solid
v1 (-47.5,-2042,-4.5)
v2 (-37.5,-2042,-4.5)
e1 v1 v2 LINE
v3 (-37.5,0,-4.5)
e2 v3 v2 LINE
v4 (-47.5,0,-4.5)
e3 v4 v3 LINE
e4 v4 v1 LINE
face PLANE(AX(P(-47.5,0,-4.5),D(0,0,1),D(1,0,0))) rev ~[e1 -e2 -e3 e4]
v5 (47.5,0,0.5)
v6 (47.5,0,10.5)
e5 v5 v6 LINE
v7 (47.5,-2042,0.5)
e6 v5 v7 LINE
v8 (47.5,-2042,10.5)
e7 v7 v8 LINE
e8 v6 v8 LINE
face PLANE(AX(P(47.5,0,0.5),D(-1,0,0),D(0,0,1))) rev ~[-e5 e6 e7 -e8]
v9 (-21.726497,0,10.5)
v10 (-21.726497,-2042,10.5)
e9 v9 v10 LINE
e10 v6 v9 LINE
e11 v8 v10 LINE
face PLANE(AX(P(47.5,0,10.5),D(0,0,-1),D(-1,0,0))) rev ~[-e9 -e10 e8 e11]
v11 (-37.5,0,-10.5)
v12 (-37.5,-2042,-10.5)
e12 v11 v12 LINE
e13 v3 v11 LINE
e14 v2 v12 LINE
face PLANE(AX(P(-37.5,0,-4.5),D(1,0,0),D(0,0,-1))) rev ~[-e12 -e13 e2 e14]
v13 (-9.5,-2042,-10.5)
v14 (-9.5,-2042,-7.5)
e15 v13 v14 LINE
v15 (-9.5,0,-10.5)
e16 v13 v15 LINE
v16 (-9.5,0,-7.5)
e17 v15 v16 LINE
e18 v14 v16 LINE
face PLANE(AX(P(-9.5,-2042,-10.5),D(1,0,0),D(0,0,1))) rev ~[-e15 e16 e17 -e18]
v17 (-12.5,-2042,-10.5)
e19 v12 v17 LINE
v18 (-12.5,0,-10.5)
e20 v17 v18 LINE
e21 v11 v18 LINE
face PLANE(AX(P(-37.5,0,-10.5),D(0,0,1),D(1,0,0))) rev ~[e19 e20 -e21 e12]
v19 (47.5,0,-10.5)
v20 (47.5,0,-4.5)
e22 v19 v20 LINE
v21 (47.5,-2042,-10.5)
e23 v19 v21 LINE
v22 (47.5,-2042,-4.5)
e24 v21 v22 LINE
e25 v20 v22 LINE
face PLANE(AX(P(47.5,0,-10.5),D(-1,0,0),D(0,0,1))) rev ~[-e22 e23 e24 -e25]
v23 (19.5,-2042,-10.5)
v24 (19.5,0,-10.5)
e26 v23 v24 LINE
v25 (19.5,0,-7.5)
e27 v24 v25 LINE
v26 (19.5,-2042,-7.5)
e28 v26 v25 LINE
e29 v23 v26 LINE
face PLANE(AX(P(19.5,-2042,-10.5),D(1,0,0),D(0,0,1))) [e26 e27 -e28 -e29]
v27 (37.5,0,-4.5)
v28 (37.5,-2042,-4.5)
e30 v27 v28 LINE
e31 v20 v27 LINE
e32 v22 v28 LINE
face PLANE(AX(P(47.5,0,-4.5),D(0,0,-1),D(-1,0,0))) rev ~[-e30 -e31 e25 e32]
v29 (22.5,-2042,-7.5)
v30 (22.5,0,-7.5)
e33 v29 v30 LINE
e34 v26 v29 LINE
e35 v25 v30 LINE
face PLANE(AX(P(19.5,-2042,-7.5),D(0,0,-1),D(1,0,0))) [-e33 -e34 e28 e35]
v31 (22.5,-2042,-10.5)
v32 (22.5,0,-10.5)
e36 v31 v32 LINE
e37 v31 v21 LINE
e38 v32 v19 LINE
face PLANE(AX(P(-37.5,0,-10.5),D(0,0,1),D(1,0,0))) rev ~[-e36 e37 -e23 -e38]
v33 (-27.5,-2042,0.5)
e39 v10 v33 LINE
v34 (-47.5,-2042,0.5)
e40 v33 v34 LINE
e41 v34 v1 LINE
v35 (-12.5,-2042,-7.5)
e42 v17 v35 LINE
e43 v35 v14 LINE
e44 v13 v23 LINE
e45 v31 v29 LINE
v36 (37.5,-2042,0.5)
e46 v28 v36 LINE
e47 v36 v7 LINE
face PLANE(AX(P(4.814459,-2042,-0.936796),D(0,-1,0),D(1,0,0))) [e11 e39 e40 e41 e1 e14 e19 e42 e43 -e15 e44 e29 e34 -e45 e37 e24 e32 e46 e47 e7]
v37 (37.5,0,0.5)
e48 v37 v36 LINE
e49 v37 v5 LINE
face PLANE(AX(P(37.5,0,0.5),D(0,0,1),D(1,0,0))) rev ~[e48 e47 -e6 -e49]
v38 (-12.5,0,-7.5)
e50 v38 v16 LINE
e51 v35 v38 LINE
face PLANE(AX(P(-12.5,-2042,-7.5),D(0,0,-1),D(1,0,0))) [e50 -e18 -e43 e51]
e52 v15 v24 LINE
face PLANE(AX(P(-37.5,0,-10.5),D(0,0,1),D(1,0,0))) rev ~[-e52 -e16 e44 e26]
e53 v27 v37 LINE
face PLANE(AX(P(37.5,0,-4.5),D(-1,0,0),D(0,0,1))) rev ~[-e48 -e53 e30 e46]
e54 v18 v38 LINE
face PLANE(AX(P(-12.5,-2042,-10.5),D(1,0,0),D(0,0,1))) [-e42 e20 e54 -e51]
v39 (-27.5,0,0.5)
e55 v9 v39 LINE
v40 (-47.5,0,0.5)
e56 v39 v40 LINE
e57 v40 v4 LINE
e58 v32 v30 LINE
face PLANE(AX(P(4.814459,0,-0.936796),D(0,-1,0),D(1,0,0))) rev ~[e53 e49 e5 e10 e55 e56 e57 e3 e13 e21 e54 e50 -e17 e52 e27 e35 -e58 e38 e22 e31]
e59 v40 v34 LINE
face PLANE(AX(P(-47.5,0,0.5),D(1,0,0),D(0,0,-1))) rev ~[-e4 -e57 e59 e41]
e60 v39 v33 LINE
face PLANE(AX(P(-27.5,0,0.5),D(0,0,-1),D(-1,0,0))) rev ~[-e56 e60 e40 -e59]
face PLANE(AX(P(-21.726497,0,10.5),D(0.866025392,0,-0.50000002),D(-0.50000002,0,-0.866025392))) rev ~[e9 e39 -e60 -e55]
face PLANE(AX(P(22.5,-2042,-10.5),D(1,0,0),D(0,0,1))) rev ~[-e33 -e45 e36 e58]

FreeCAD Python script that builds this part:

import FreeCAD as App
import Part
import Sketcher

V = App.Vector
Q = App.Units.Quantity

doc = App.newDocument("Part")
params = doc.addObject("Spreadsheet::Sheet", "Params")
for row, (alias, value) in enumerate([
    ("sketch1_width", "20 mm"),
    ("sketch1_width2", "10 mm"),
    ("sketch1_width3", "85 mm"),
    ("sketch1_height", "5 mm"),
    ("sketch1_height2", "6 mm"),
    ("pad1_length", "2042 mm"),
    ("sketch2_width", "3 mm"),
], start=1):
    params.set(f"A{row}", alias)
    params.set(f"B{row}", "=" + value)
    params.setAlias(f"B{row}", alias)

body = doc.addObject("PartDesign::Body", "Body")

# Sketch on XZ plane
sketch1 = body.newObject("Sketcher::SketchObject", "Sketch")
sketch1.AttachmentSupport = (doc.getObject("XZ_Plane"), [""])
sketch1.MapMode = "FlatFace"
sketch1.addGeometry(Part.LineSegment(V(48, 10, 0), V(-22, 10, 0)), False)
sketch1.addGeometry(Part.LineSegment(V(-22, 10, 0), V(-28, 0, 0)), False)
sketch1.addGeometry(Part.LineSegment(V(-28, 0, 0), V(-48, 0, 0)), False)
sketch1.addGeometry(Part.LineSegment(V(-48, 0, 0), V(-48, -4, 0)), False)
sketch1.addGeometry(Part.LineSegment(V(-48, -4, 0), V(-38, -4, 0)), False)
sketch1.addGeometry(Part.LineSegment(V(-38, -4, 0), V(-38, -10, 0)), False)
sketch1.addGeometry(Part.LineSegment(V(-38, -10, 0), V(48, -10, 0)), False)
sketch1.addGeometry(Part.LineSegment(V(48, -10, 0), V(48, -4, 0)), False)
sketch1.addGeometry(Part.LineSegment(V(48, -4, 0), V(38, -4, 0)), False)
sketch1.addGeometry(Part.LineSegment(V(38, -4, 0), V(38, 0, 0)), False)
sketch1.addGeometry(Part.LineSegment(V(38, 0, 0), V(48, 0, 0)), False)
sketch1.addGeometry(Part.LineSegment(V(48, 0, 0), V(48, 10, 0)), False)
sketch1.addConstraint(Sketcher.Constraint("Coincident", 0, 2, 1, 1))
sketch1.addConstraint(Sketcher.Constraint("Coincident", 1, 2, 2, 1))
sketch1.addConstraint(Sketcher.Constraint("Coincident", 2, 2, 3, 1))
sketch1.addConstraint(Sketcher.Constraint("Coincident", 3, 2, 4, 1))
sketch1.addConstraint(Sketcher.Constraint("Coincident", 4, 2, 5, 1))
sketch1.addConstraint(Sketcher.Constraint("Coincident", 5, 2, 6, 1))
sketch1.addConstraint(Sketcher.Constraint("Coincident", 6, 2, 7, 1))
sketch1.addConstraint(Sketcher.Constraint("Coincident", 7, 2, 8, 1))
sketch1.addConstraint(Sketcher.Constraint("Coincident", 8, 2, 9, 1))
sketch1.addConstraint(Sketcher.Constraint("Coincident", 9, 2, 10, 1))
sketch1.addConstraint(Sketcher.Constraint("Coincident", 10, 2, 11, 1))
sketch1.addConstraint(Sketcher.Constraint("Coincident", 11, 2, 0, 1))
sketch1.addConstraint(Sketcher.Constraint("Horizontal", 0))
sketch1.addConstraint(Sketcher.Constraint("Horizontal", 2))
sketch1.addConstraint(Sketcher.Constraint("Vertical", 3))
sketch1.addConstraint(Sketcher.Constraint("Horizontal", 4))
sketch1.addConstraint(Sketcher.Constraint("Vertical", 5))
sketch1.addConstraint(Sketcher.Constraint("Horizontal", 6))
sketch1.addConstraint(Sketcher.Constraint("Vertical", 7))
sketch1.addConstraint(Sketcher.Constraint("Horizontal", 8))
sketch1.addConstraint(Sketcher.Constraint("Vertical", 9))
sketch1.addConstraint(Sketcher.Constraint("Horizontal", 10))
sketch1.addConstraint(Sketcher.Constraint("Vertical", 11))
sketch1.addConstraint(Sketcher.Constraint("Symmetric", 3, 2, 7, 2, -2))
sketch1.addConstraint(Sketcher.Constraint("Symmetric", 2, 2, 10, 2, -2))
sketch1.addConstraint(Sketcher.Constraint("Equal", 4, 8))
sketch1.addConstraint(Sketcher.Constraint("Equal", 10, 11))
sketch1.addConstraint(Sketcher.Constraint("DistanceX", 2, 2, 2, 1, 20.0))
sketch1.addConstraint(Sketcher.Constraint("DistanceX", 4, 1, 4, 2, 10.0))
sketch1.addConstraint(Sketcher.Constraint("DistanceX", 6, 1, 6, 2, 85.0))
sketch1.addConstraint(Sketcher.Constraint("DistanceY", 3, 2, 3, 1, 5.0))
sketch1.addConstraint(Sketcher.Constraint("DistanceY", 5, 2, 5, 1, 6.0))
sketch1.addConstraint(Sketcher.Constraint("Angle", 1, Q("-120.000001 deg")))
sketch1.addConstraint(Sketcher.Constraint("DistanceY", -1, 1, 0, 2, 10.5))
sketch1.setExpression("Constraints[27]", "Params.sketch1_width")
sketch1.setExpression("Constraints[28]", "Params.sketch1_width2")
sketch1.setExpression("Constraints[29]", "Params.sketch1_width3")
sketch1.setExpression("Constraints[30]", "Params.sketch1_height")
sketch1.setExpression("Constraints[31]", "Params.sketch1_height2")
pad1 = body.newObject("PartDesign::Pad", "Pad")
pad1.Profile = sketch1
pad1.setExpression("Length", "Params.pad1_length")

# Sketch on XZ plane
sketch2 = body.newObject("Sketcher::SketchObject", "Sketch001")
sketch2.AttachmentSupport = (doc.getObject("XZ_Plane"), [""])
sketch2.MapMode = "FlatFace"
sketch2.AttachmentOffset = App.Placement(V(0, 0, 2042), App.Rotation())
sketch2.addGeometry(Part.LineSegment(V(-12.5, -7.5, 0), V(-12.5, -10.5, 0)), False)
sketch2.addGeometry(Part.LineSegment(V(-12.5, -10.5, 0), V(-9.5, -10.5, 0)), False)
sketch2.addGeometry(Part.LineSegment(V(-9.5, -10.5, 0), V(-9.5, -7.5, 0)), False)
sketch2.addGeometry(Part.LineSegment(V(-9.5, -7.5, 0), V(-12.5, -7.5, 0)), False)
sketch2.addGeometry(Part.LineSegment(V(19.5, -7.5, 0), V(19.5, -10.5, 0)), False)
sketch2.addGeometry(Part.LineSegment(V(19.5, -10.5, 0), V(22.5, -10.5, 0)), False)
sketch2.addGeometry(Part.LineSegment(V(22.5, -10.5, 0), V(22.5, -7.5, 0)), False)
sketch2.addGeometry(Part.LineSegment(V(22.5, -7.5, 0), V(19.5, -7.5, 0)), False)
sketch2.addConstraint(Sketcher.Constraint("Coincident", 0, 2, 1, 1))
sketch2.addConstraint(Sketcher.Constraint("Coincident", 1, 2, 2, 1))
sketch2.addConstraint(Sketcher.Constraint("Coincident", 2, 2, 3, 1))
sketch2.addConstraint(Sketcher.Constraint("Coincident", 3, 2, 0, 1))
sketch2.addConstraint(Sketcher.Constraint("Coincident", 4, 2, 5, 1))
sketch2.addConstraint(Sketcher.Constraint("Coincident", 5, 2, 6, 1))
sketch2.addConstraint(Sketcher.Constraint("Coincident", 6, 2, 7, 1))
sketch2.addConstraint(Sketcher.Constraint("Coincident", 7, 2, 4, 1))
sketch2.addConstraint(Sketcher.Constraint("Vertical", 0))
sketch2.addConstraint(Sketcher.Constraint("Horizontal", 1))
sketch2.addConstraint(Sketcher.Constraint("Vertical", 2))
sketch2.addConstraint(Sketcher.Constraint("Horizontal", 3))
sketch2.addConstraint(Sketcher.Constraint("Vertical", 4))
sketch2.addConstraint(Sketcher.Constraint("Horizontal", 5))
sketch2.addConstraint(Sketcher.Constraint("Vertical", 6))
sketch2.addConstraint(Sketcher.Constraint("Horizontal", 7))
sketch2.addConstraint(Sketcher.Constraint("Horizontal", 1, 2, 4, 2))
sketch2.addConstraint(Sketcher.Constraint("Horizontal", 3, 2, 6, 2))
sketch2.addConstraint(Sketcher.Constraint("Equal", 3, 5))
sketch2.addConstraint(Sketcher.Constraint("Equal", 7, 0))
sketch2.addConstraint(Sketcher.Constraint("DistanceX", 1, 1, 1, 2, 3.0))
sketch2.addConstraint(Sketcher.Constraint("DistanceX", 1, 2, 4, 2, 29.0))
sketch2.addConstraint(Sketcher.Constraint("DistanceX", 0, 2, -1, 1, 12.5))
sketch2.addConstraint(Sketcher.Constraint("DistanceY", 0, 2, -1, 1, 10.5))
sketch2.setExpression("Constraints[20]", "Params.sketch2_width")
pocket1 = body.newObject("PartDesign::Pocket", "Pocket")
pocket1.Profile = sketch2
pocket1.Type = "ThroughAll"

doc.recompute()
